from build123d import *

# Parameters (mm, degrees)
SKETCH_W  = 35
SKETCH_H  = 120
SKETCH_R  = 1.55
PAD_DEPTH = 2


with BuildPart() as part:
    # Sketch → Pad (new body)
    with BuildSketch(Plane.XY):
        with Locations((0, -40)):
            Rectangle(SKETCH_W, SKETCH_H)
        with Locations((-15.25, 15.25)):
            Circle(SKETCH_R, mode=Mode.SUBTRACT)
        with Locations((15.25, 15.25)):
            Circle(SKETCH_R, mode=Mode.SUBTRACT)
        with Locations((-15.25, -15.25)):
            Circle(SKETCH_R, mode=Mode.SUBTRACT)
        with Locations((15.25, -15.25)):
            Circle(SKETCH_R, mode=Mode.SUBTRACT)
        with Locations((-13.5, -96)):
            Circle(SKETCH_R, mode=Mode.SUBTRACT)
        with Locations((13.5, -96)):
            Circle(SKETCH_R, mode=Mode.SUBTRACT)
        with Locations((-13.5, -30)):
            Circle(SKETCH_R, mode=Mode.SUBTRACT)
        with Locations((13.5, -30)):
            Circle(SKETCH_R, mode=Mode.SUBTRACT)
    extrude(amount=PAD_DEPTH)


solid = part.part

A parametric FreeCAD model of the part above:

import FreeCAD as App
import Part
import Sketcher

V = App.Vector
Q = App.Units.Quantity

doc = App.newDocument("Part")
params = doc.addObject("Spreadsheet::Sheet", "Params")
for row, (alias, value) in enumerate([
    ("sketch1_diameter", "3.1 mm"),
    ("sketch1_width", "35 mm"),
    ("sketch1_height", "120 mm"),
    ("pad1_length", "2 mm"),
], start=1):
    params.set(f"A{row}", alias)
    params.set(f"B{row}", "=" + value)
    params.setAlias(f"B{row}", alias)

body = doc.addObject("PartDesign::Body", "Body")

sketch1 = body.newObject("Sketcher::SketchObject", "Sketch")
sketch1.AttachmentSupport = (doc.getObject("XY_Plane"), [""])
sketch1.MapMode = "FlatFace"
sketch1.addGeometry([
    Part.LineSegment(V(-17.5, 20, 0), V(-17.5, -100, 0)),
    Part.LineSegment(V(-17.5, -100, 0), V(17.5, -100, 0)),
    Part.LineSegment(V(17.5, -100, 0), V(17.5, 20, 0)),
    Part.LineSegment(V(17.5, 20, 0), V(-17.5, 20, 0)),
    Part.Circle(V(-13.5, -96, 0), V(0, 0, 1), 1.55),
    Part.Circle(V(13.5, -96, 0), V(0, 0, 1), 1.55),
    Part.Circle(V(-13.5, -30, 0), V(0, 0, 1), 1.55),
    Part.Circle(V(-15.25, -15.25, 0), V(0, 0, 1), 1.55),
    Part.Circle(V(-15.25, 15.25, 0), V(0, 0, 1), 1.55),
    Part.Circle(V(13.5, -30, 0), V(0, 0, 1), 1.55),
    Part.Circle(V(15.25, -15.25, 0), V(0, 0, 1), 1.55),
    Part.Circle(V(15.25, 15.25, 0), V(0, 0, 1), 1.55),
], False)
sketch1.addConstraint([
    Sketcher.Constraint("Coincident", 0, 2, 1, 1),
    Sketcher.Constraint("Coincident", 1, 2, 2, 1),
    Sketcher.Constraint("Coincident", 2, 2, 3, 1),
    Sketcher.Constraint("Coincident", 3, 2, 0, 1),
    Sketcher.Constraint("Vertical", 0),
    Sketcher.Constraint("Horizontal", 1),
    Sketcher.Constraint("Vertical", 2),
    Sketcher.Constraint("Horizontal", 3),
    Sketcher.Constraint("Equal", 4, 5),
    Sketcher.Constraint("Equal", 5, 6),
    Sketcher.Constraint("Equal", 6, 7),
    Sketcher.Constraint("Equal", 7, 8),
    Sketcher.Constraint("Equal", 8, 9),
    Sketcher.Constraint("Equal", 9, 10),
    Sketcher.Constraint("Equal", 10, 11),
    Sketcher.Constraint("Symmetric", 8, 3, 10, 3, -1, 1),
    Sketcher.Constraint("Symmetric", 7, 3, 11, 3, -1, 1),
    Sketcher.Constraint("Symmetric", 4, 3, 5, 3, -2),
    Sketcher.Constraint("Symmetric", 6, 3, 9, 3, -2),
    Sketcher.Constraint("Symmetric", 7, 3, 10, 3, -2),
    Sketcher.Constraint("Vertical", 4, 3, 6, 3),
    Sketcher.Constraint("Diameter", 4, Q("3.1 mm")),
    Sketcher.Constraint("DistanceX", 1, 1, 1, 2, Q("35 mm")),
    Sketcher.Constraint("DistanceY", 0, 2, 0, 1, Q("120 mm")),
    Sketcher.Constraint("DistanceY", 4, 3, -1, 1, Q("96 mm")),
    Sketcher.Constraint("DistanceY", 6, 3, -1, 1, Q("30 mm")),
    Sketcher.Constraint("DistanceY", 0, 2, -1, 1, Q("100 mm")),
    Sketcher.Constraint("DistanceX", 4, 3, 5, 3, Q("27 mm")),
    Sketcher.Constraint("DistanceX", 0, 2, 4, 3, Q("4 mm")),
    Sketcher.Constraint("DistanceY", 7, 3, 8, 3, Q("30.5 mm")),
    Sketcher.Constraint("DistanceX", 7, 3, 10, 3, Q("30.5 mm")),
])
sketch1.setExpression("Constraints[21]", "Params.sketch1_diameter")
sketch1.setExpression("Constraints[22]", "Params.sketch1_width")
sketch1.setExpression("Constraints[23]", "Params.sketch1_height")
pad1 = body.newObject("PartDesign::Pad", "Pad")
pad1.Profile = sketch1
pad1.setExpression("Length", "Params.pad1_length")

doc.recompute()
